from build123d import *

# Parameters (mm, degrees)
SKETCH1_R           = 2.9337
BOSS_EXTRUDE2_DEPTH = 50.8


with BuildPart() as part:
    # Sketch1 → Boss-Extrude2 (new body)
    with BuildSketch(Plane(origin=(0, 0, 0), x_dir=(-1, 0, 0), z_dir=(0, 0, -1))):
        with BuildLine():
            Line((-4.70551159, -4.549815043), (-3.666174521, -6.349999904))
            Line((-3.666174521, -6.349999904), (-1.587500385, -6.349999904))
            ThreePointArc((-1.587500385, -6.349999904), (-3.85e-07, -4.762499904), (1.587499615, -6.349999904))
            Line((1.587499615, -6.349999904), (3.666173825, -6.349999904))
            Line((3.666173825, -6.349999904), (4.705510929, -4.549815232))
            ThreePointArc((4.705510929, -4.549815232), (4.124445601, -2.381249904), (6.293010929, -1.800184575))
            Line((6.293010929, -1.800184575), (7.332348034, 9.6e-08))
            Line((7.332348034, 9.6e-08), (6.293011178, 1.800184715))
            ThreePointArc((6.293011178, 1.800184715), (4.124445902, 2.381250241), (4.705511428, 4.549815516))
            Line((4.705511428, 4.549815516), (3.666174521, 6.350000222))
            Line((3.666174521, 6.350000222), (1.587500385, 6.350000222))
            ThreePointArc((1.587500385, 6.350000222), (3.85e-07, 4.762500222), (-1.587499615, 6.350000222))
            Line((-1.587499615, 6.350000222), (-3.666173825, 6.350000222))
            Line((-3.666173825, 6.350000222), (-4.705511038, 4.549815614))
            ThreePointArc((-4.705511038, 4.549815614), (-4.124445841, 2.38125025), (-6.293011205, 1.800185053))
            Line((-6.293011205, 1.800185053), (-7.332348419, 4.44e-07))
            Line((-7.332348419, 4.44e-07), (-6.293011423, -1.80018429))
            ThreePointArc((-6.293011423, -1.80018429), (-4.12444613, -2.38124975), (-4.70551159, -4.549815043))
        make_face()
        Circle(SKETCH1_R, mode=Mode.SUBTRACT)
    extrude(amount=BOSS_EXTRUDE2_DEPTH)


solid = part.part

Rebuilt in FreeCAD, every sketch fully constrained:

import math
import FreeCAD as App
import Part
import Sketcher

V = App.Vector
Q = App.Units.Quantity

doc = App.newDocument("Part")
body = doc.addObject("PartDesign::Body", "Body")

# Sketch on XY plane
sketch1 = doc.addObject("Sketcher::SketchObject", "Sketch")
body.addObject(sketch1)
sketch1.AttachmentSupport = (doc.XY_Plane, [""])
sketch1.MapMode = "FlatFace"
sketch1.addGeometry([
    Part.LineSegment(V(4.7, -4.5, 0), V(3.7, -6.3, 0)),  # 0
    Part.LineSegment(V(3.7, -6.3, 0), V(1.6, -6.3, 0)),  # 1
    Part.ArcOfCircle(Part.Circle(V(0, -6.3, 0), V(0, 0, 1), 1.6), math.radians(0), math.radians(180)),  # 2
    Part.LineSegment(V(-1.6, -6.3, 0), V(-3.7, -6.3, 0)),  # 3
    Part.LineSegment(V(-3.7, -6.3, 0), V(-4.7, -4.5, 0)),  # 4
    Part.ArcOfCircle(Part.Circle(V(-5.5, -3.2, 0), V(0, 0, 1), 1.6), math.radians(-60), math.radians(120)),  # 5
    Part.LineSegment(V(-6.3, -1.8, 0), V(-7.3, 0, 0)),  # 6
    Part.LineSegment(V(-7.3, 0, 0), V(-6.3, 1.8, 0)),  # 7
    Part.ArcOfCircle(Part.Circle(V(-5.5, 3.2, 0), V(0, 0, 1), 1.6), math.radians(-120), math.radians(60)),  # 8
    Part.LineSegment(V(-4.7, 4.5, 0), V(-3.7, 6.4, 0)),  # 9
    Part.LineSegment(V(-3.7, 6.4, 0), V(-1.6, 6.4, 0)),  # 10
    Part.ArcOfCircle(Part.Circle(V(0, 6.4, 0), V(0, 0, 1), 1.6), math.radians(180), math.radians(360)),  # 11
    Part.LineSegment(V(1.6, 6.4, 0), V(3.7, 6.4, 0)),  # 12
    Part.LineSegment(V(3.7, 6.4, 0), V(4.7, 4.5, 0)),  # 13
    Part.ArcOfCircle(Part.Circle(V(5.5, 3.2, 0), V(0, 0, 1), 1.6), math.radians(120), math.radians(300)),  # 14
    Part.LineSegment(V(6.3, 1.8, 0), V(7.3, 0, 0)),  # 15
    Part.LineSegment(V(7.3, 0, 0), V(6.3, -1.8, 0)),  # 16
    Part.ArcOfCircle(Part.Circle(V(5.5, -3.2, 0), V(0, 0, 1), 1.6), math.radians(60), math.radians(240)),  # 17
    Part.Circle(V(0, 0, 0), V(0, 0, 1), 2.9),  # 18
], False)
sketch1.addConstraint([
    Sketcher.Constraint("Coincident", 0, 2, 1, 1),
    Sketcher.Constraint("Coincident", 1, 2, 2, 1),
    Sketcher.Constraint("Coincident", 2, 2, 3, 1),
    Sketcher.Constraint("Coincident", 3, 2, 4, 1),
    Sketcher.Constraint("Coincident", 4, 2, 5, 1),
    Sketcher.Constraint("Coincident", 5, 2, 6, 1),
    Sketcher.Constraint("Coincident", 6, 2, 7, 1),
    Sketcher.Constraint("Coincident", 7, 2, 8, 1),
    Sketcher.Constraint("Coincident", 8, 2, 9, 1),
    Sketcher.Constraint("Coincident", 9, 2, 10, 1),
    Sketcher.Constraint("Coincident", 10, 2, 11, 1),
    Sketcher.Constraint("Coincident", 11, 2, 12, 1),
    Sketcher.Constraint("Coincident", 12, 2, 13, 1),
    Sketcher.Constraint("Coincident", 13, 2, 14, 1),
    Sketcher.Constraint("Coincident", 14, 2, 15, 1),
    Sketcher.Constraint("Coincident", 15, 2, 16, 1),
    Sketcher.Constraint("Coincident", 16, 2, 17, 1),
    Sketcher.Constraint("Coincident", 17, 2, 0, 1),
    Sketcher.Constraint("Horizontal", 1),
    Sketcher.Constraint("Horizontal", 3),
    Sketcher.Constraint("Horizontal", 10),
    Sketcher.Constraint("Horizontal", 12),
    Sketcher.Constraint("Coincident", 18, 3, -1, 1),
    Sketcher.Constraint("Equal", 2, 5),
    Sketcher.Constraint("Equal", 5, 8),
    Sketcher.Constraint("Equal", 8, 11),
    Sketcher.Constraint("Equal", 11, 14),
    Sketcher.Constraint("Equal", 14, 17),
    Sketcher.Constraint("Symmetric", 2, 3, 11, 3, -1, 1),
    Sketcher.Constraint("Symmetric", 5, 3, 14, 3, -1, 1),
    Sketcher.Constraint("Symmetric", 8, 3, 17, 3, -1, 1),
    Sketcher.Constraint("Symmetric", 0, 2, 9, 2, -1, 1),
    Sketcher.Constraint("Symmetric", 3, 2, 12, 2, -1, 1),
    Sketcher.Constraint("Symmetric", 6, 2, 15, 2, -1, 1),
    Sketcher.Constraint("Symmetric", 8, 3, 14, 3, -2),
    Sketcher.Constraint("Symmetric", 1, 2, 2, 2, -2),
    Sketcher.Constraint("PointOnObject", 6, 2, -1),
    Sketcher.Constraint("Parallel", 4, 6),
    Sketcher.Constraint("Parallel", 0, 7),
    Sketcher.Constraint("Parallel", 7, 9),
    Sketcher.Constraint("Parallel", 6, 13),
    Sketcher.Constraint("Parallel", 13, 15),
    Sketcher.Constraint("Parallel", 9, 16),
    Sketcher.Constraint("Horizontal", 2, 3, 0, 2),
    Sketcher.Constraint("Horizontal", 8, 2, 13, 2),
    Sketcher.Constraint("Horizontal", 7, 2, 14, 2),
    Sketcher.Constraint("Equal", 4, 6),
    Sketcher.Constraint("Diameter", 18, Q("0.231 in")),
    Sketcher.Constraint("Angle", 0, Q("-119.999997 deg")),
    Sketcher.Constraint("Radius", 2, Q("0.0625 in")),
    Sketcher.Constraint("DistanceY", 2, 3, 11, 3, Q("0.5 in")),
    Sketcher.Constraint("DistanceY", 5, 3, 8, 3, Q("0.25 in")),
    Sketcher.Constraint("DistanceX", 5, 3, 4, 2, Q("0.03125 in")),
    Sketcher.Constraint("DistanceX", 1, 2, 1, 1, 2.078674),
])
pad1 = doc.addObject("PartDesign::Pad", "Pad")
body.addObject(pad1)
pad1.Profile = sketch1
pad1.Length = Q("2 in")
pad1.Reversed = True

doc.recompute()
